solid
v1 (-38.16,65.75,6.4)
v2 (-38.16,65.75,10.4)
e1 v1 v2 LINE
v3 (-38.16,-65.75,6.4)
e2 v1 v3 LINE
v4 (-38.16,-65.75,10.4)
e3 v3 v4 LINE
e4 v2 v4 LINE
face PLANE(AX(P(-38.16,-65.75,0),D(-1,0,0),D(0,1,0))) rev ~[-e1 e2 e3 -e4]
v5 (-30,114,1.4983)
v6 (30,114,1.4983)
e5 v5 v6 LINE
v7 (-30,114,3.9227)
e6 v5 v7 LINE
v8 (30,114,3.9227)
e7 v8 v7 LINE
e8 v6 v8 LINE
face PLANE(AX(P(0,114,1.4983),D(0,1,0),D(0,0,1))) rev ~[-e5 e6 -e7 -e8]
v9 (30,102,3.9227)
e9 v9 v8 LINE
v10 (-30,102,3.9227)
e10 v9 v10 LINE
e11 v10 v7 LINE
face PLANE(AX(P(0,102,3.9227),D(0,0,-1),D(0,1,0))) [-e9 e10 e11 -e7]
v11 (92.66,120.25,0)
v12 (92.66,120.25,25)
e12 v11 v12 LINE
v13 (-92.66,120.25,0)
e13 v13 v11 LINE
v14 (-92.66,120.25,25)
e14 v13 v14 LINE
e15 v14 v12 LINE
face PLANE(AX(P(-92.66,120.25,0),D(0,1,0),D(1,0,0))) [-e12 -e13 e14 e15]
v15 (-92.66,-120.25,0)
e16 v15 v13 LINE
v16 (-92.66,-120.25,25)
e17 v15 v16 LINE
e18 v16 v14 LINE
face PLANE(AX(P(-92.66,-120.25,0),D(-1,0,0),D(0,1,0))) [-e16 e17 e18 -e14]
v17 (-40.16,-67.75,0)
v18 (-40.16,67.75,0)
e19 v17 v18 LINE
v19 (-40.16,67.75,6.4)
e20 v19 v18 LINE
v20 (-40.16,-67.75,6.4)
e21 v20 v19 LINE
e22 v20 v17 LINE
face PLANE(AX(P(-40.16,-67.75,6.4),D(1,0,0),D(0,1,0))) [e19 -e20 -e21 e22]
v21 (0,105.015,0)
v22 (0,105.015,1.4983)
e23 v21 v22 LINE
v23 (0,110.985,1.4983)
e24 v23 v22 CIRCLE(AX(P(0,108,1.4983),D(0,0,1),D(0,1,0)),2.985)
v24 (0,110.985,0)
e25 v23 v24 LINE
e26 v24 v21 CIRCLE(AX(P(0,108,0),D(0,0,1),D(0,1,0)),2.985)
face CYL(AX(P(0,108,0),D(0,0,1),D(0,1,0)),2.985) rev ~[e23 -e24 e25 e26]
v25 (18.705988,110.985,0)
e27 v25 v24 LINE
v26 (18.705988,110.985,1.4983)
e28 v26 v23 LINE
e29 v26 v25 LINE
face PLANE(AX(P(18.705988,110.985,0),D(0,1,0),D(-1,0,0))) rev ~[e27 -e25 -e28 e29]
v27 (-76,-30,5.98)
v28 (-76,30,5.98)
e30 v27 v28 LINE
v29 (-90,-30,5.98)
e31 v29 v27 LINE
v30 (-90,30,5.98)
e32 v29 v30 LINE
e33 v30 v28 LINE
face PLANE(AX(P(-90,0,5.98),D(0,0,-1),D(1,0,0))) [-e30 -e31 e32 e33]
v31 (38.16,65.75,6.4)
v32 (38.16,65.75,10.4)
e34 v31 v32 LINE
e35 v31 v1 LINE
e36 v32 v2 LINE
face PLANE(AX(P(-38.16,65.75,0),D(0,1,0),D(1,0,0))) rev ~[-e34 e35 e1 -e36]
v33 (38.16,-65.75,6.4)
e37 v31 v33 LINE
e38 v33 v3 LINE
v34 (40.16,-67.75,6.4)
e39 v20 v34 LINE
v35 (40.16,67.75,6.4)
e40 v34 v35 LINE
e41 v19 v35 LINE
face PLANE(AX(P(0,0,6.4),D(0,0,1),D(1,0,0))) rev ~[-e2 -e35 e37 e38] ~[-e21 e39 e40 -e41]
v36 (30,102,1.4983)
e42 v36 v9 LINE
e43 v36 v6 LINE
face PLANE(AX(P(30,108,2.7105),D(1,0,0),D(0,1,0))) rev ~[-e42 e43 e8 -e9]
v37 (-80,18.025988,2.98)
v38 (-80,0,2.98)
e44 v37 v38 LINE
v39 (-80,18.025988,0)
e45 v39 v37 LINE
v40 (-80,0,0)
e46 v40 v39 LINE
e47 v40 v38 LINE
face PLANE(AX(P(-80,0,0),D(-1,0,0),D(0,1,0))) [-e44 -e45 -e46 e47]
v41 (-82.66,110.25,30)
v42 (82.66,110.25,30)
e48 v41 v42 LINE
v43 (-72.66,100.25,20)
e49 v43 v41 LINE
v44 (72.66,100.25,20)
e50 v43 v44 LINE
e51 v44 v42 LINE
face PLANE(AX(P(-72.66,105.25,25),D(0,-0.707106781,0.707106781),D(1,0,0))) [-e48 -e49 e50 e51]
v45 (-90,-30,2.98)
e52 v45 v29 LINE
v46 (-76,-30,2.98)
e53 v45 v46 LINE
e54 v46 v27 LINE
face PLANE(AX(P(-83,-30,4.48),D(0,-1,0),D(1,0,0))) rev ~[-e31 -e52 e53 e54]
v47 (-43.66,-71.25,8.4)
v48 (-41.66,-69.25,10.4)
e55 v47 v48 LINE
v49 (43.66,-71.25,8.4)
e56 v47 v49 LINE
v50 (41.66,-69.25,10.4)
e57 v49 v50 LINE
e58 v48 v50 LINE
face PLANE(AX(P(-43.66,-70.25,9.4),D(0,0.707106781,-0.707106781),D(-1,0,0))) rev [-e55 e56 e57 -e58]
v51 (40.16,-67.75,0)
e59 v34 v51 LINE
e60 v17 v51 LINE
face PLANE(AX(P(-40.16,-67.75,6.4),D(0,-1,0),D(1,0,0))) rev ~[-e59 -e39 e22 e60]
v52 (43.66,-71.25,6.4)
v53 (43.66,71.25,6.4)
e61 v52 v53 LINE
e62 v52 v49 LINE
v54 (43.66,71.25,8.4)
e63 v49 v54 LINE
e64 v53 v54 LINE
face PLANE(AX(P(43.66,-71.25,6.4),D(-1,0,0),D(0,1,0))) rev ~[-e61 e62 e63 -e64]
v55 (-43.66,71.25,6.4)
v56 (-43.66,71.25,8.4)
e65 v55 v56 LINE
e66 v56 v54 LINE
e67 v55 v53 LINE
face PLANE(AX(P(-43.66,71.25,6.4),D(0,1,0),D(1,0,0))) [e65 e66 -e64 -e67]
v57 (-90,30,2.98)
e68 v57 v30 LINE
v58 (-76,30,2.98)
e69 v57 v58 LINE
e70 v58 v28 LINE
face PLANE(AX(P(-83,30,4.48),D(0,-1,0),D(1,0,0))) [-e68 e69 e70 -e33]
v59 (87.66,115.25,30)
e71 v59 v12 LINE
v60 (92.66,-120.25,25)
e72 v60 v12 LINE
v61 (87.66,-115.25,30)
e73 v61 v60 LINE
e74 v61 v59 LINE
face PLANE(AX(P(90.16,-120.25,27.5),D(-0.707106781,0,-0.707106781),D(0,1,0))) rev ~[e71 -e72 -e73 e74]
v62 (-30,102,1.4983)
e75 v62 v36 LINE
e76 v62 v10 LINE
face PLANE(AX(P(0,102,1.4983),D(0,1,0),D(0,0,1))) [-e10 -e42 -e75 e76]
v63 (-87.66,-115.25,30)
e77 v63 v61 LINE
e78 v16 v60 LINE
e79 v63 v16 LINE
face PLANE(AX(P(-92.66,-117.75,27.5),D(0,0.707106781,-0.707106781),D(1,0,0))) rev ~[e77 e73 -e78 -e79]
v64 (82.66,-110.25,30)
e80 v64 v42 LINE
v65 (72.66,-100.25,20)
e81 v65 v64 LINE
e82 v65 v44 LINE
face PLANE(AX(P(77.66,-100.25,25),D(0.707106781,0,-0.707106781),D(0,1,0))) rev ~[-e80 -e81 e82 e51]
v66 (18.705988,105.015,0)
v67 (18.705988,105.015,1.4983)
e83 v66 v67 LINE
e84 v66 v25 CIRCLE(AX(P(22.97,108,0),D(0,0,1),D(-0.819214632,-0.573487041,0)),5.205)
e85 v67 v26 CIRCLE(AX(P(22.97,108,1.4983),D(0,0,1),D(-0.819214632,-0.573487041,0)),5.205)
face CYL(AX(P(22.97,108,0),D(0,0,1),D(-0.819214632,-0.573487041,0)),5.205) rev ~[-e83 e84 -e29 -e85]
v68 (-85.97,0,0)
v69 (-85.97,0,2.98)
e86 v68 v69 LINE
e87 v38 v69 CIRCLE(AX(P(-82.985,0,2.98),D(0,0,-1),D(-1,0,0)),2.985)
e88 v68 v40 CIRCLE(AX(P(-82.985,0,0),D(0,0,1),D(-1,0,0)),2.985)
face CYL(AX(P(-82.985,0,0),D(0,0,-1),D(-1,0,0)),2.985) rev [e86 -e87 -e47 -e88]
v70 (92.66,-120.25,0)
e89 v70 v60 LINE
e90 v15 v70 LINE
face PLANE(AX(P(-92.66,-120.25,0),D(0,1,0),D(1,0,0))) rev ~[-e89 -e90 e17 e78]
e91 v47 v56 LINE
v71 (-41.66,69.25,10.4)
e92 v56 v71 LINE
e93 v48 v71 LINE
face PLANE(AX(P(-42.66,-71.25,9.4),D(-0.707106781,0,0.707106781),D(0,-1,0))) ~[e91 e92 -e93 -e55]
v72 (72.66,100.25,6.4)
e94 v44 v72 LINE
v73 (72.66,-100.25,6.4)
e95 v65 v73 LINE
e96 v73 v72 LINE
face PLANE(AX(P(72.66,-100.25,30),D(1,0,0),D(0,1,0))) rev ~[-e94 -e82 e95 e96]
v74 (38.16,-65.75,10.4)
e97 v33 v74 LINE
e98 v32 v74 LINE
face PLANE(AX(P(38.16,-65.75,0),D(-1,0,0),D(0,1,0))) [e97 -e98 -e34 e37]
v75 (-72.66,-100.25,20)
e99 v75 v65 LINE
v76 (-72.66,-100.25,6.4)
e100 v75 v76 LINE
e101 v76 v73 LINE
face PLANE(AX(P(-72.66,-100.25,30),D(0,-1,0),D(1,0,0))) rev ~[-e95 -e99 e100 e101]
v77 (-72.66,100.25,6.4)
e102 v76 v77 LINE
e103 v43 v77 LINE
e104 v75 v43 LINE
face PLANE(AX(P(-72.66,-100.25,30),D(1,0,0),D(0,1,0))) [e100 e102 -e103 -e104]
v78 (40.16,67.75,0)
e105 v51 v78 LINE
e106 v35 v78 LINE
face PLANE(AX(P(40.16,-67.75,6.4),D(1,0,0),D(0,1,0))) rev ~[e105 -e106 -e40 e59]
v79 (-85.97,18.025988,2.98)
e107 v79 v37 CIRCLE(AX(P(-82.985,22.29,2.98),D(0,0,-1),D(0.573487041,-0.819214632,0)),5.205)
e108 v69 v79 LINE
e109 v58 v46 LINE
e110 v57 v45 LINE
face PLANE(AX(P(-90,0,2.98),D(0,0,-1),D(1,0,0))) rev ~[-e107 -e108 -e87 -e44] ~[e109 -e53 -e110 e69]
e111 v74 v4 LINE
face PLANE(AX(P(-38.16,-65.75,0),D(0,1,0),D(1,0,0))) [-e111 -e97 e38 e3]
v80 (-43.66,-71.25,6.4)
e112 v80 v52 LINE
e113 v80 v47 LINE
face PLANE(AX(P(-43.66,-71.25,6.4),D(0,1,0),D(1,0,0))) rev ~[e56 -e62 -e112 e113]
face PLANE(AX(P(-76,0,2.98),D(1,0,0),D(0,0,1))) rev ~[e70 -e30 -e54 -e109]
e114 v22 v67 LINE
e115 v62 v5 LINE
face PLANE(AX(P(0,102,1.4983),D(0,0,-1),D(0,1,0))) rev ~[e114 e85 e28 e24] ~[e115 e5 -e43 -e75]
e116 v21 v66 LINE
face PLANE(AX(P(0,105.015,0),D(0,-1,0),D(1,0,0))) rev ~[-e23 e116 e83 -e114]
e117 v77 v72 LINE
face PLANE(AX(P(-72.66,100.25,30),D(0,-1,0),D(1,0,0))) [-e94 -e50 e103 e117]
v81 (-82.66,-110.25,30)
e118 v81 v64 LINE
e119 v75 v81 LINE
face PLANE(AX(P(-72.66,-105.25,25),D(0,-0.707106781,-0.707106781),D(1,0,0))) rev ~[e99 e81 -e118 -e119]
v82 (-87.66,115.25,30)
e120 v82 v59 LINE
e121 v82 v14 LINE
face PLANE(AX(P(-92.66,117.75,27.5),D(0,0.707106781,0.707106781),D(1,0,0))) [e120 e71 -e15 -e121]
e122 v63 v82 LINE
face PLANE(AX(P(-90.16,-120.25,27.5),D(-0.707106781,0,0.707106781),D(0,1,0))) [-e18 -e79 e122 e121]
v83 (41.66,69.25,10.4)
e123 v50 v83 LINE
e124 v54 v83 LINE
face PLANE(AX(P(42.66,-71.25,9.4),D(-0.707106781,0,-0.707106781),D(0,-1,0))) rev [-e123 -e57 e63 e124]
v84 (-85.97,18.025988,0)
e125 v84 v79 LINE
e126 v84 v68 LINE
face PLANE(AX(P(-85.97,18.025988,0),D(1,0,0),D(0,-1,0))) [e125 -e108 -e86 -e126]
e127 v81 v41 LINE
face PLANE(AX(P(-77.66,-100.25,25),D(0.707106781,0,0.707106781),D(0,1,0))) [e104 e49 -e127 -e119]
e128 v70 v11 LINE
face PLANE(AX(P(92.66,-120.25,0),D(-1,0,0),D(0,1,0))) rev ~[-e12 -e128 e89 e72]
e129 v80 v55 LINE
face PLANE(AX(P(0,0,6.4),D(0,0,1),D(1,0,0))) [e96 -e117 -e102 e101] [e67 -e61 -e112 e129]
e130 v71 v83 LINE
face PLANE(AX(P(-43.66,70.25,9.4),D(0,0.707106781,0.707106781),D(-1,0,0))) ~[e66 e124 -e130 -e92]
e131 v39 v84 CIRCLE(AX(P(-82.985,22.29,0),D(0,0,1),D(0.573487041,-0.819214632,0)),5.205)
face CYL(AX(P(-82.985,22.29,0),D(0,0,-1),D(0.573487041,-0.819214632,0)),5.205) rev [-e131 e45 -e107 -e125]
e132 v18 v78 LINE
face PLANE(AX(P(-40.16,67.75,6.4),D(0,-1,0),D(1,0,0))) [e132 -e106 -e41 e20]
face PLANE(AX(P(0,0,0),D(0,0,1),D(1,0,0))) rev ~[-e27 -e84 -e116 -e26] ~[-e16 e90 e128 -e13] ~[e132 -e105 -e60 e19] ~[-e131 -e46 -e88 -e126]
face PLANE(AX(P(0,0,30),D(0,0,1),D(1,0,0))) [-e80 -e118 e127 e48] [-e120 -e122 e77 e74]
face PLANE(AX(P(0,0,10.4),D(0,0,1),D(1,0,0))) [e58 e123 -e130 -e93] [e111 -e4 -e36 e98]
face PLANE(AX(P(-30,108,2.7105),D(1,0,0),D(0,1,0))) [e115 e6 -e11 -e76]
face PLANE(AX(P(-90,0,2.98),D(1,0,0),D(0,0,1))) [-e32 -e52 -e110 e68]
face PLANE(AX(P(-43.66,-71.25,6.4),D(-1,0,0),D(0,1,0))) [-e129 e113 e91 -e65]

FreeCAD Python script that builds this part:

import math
import FreeCAD as App
import Part
import Sketcher
from FreeCAD import Vector


def edges_at(feature, points):
    """Names of the edges that pass closest to the given points."""
    edges = feature.Shape.Edges
    near = lambda p: min(range(len(edges)), key=lambda i: edges[i].distToShape(Part.Vertex(*p))[0])
    return sorted({f"Edge{near(p) + 1}" for p in points})


def add_polygon(sketch, points):
    """Adds a closed chain of lines whose ends are joined by coincident constraints."""
    first, n = sketch.GeometryCount, len(points)
    for a, b in zip(points, points[1:] + points[:1]):
        sketch.addGeometry(Part.LineSegment(App.Vector(*a, 0), App.Vector(*b, 0)), False)
    for i in range(n):
        sketch.addConstraint(Sketcher.Constraint("Coincident", first + i, 2, first + (i + 1) % n, 1))

doc = App.newDocument("Part")
body = doc.addObject("PartDesign::Body", "Body")

sketch1 = doc.addObject("Sketcher::SketchObject", "Sketch")
body.addObject(sketch1)
sketch1.AttachmentSupport = (doc.XY_Plane, [""])
sketch1.MapMode = "FlatFace"
add_polygon(sketch1, [(-92.66, 120.25), (-92.66, -120.25), (92.66, -120.25), (92.66, 120.25)])
sketch1.addConstraint([
    Sketcher.Constraint("Vertical", 0),
    Sketcher.Constraint("Horizontal", 1),
    Sketcher.Constraint("Vertical", 2),
    Sketcher.Constraint("Horizontal", 3),
    Sketcher.Constraint("Symmetric", 0, 2, 2, 2, -1, 1),
    Sketcher.Constraint("DistanceY", 0, 2, 0, 1, 240.5),
    Sketcher.Constraint("DistanceX", 1, 1, 1, 2, 185.32),
])
pad1 = doc.addObject("PartDesign::Pad", "Pad")
body.addObject(pad1)
pad1.Profile = sketch1
pad1.Length = 30

sketch2 = doc.addObject("Sketcher::SketchObject", "Sketch001")
body.addObject(sketch2)
sketch2.AttachmentSupport = (doc.XY_Plane, [""])
sketch2.MapMode = "FlatFace"
sketch2.AttachmentOffset = App.Placement(Vector(0, 0, 30), App.Rotation())
add_polygon(sketch2, [(-72.66, 100.25), (-72.66, -100.25), (72.66, -100.25), (72.66, 100.25)])
sketch2.addConstraint([
    Sketcher.Constraint("Vertical", 0),
    Sketcher.Constraint("Horizontal", 1),
    Sketcher.Constraint("Vertical", 2),
    Sketcher.Constraint("Horizontal", 3),
    Sketcher.Constraint("Symmetric", 0, 2, 2, 2, -1, 1),
    Sketcher.Constraint("DistanceY", 0, 2, 0, 1, 200.5),
    Sketcher.Constraint("DistanceX", 1, 1, 1, 2, 145.32),
])
pocket1 = doc.addObject("PartDesign::Pocket", "Pocket")
body.addObject(pocket1)
pocket1.Profile = sketch2
pocket1.Length = 23.6

sketch3 = doc.addObject("Sketcher::SketchObject", "Sketch002")
body.addObject(sketch3)
sketch3.AttachmentSupport = (doc.XY_Plane, [""])
sketch3.MapMode = "FlatFace"
sketch3.AttachmentOffset = App.Placement(Vector(0, 0, 6.4), App.Rotation())
add_polygon(sketch3, [(-40.16, 67.75), (-40.16, -67.75), (40.16, -67.75), (40.16, 67.75)])
sketch3.addConstraint([
    Sketcher.Constraint("Vertical", 0),
    Sketcher.Constraint("Horizontal", 1),
    Sketcher.Constraint("Vertical", 2),
    Sketcher.Constraint("Horizontal", 3),
    Sketcher.Constraint("Symmetric", 0, 2, 2, 2, -1, 1),
    Sketcher.Constraint("DistanceY", 0, 2, 0, 1, 135.5),
    Sketcher.Constraint("DistanceX", 1, 1, 1, 2, 80.32),
])
pocket2 = doc.addObject("PartDesign::Pocket", "Pocket001")
body.addObject(pocket2)
pocket2.Profile = sketch3
pocket2.Length = 6.4

sketch4 = doc.addObject("Sketcher::SketchObject", "Sketch003")
body.addObject(sketch4)
sketch4.AttachmentSupport = (doc.XY_Plane, [""])
sketch4.MapMode = "FlatFace"
sketch4.addGeometry([
    Part.ArcOfCircle(Part.Circle(Vector(-82.985, 0, 0), Vector(0, 0, 1), 2.985), math.radians(180), math.radians(360)),
    Part.LineSegment(Vector(-80, 0, 0), Vector(-80, 18.025988, 0)),
    Part.ArcOfCircle(Part.Circle(Vector(-82.985, 22.29, 0), Vector(0, 0, 1), 5.205), math.radians(-55.006253), math.radians(235.006253)),
    Part.LineSegment(Vector(-85.97, 18.025988, 0), Vector(-85.97, 0, 0)),
], False)
sketch4.addConstraint([
    Sketcher.Constraint("Tangent", 0, 2, 1, 1),
    Sketcher.Constraint("Coincident", 1, 2, 2, 1),
    Sketcher.Constraint("Coincident", 2, 2, 3, 1),
    Sketcher.Constraint("Tangent", 3, 2, 0, 1),
    Sketcher.Constraint("Vertical", 1),
    Sketcher.Constraint("Vertical", 3),
    Sketcher.Constraint("PointOnObject", 0, 3, -1),
    Sketcher.Constraint("Horizontal", 1, 2, 2, 2),
    Sketcher.Constraint("DistanceX", 0, 2, -1, 1, 80.0),
    Sketcher.Constraint("Radius", 0, 2.985),
    Sketcher.Constraint("Radius", 2, 5.205),
    Sketcher.Constraint("DistanceY", -1, 1, 2, 3, 22.29),
])
pocket3 = doc.addObject("PartDesign::Pocket", "Pocket002")
body.addObject(pocket3)
pocket3.Profile = sketch4
pocket3.Length = 3
pocket3.Reversed = True

sketch5 = doc.addObject("Sketcher::SketchObject", "Sketch004")
body.addObject(sketch5)
sketch5.AttachmentSupport = (doc.XZ_Plane, [""])
sketch5.MapMode = "FlatFace"
add_polygon(sketch5, [(-90, 5.98), (-90, 2.98), (-76, 2.98), (-76, 5.98)])
sketch5.addConstraint([
    Sketcher.Constraint("Vertical", 0),
    Sketcher.Constraint("Horizontal", 1),
    Sketcher.Constraint("Vertical", 2),
    Sketcher.Constraint("Horizontal", 3),
    Sketcher.Constraint("DistanceX", 1, 1, 1, 2, 14.0),
    Sketcher.Constraint("DistanceY", 0, 2, 0, 1, 3.0),
    Sketcher.Constraint("DistanceX", 0, 2, -1, 1, 90.0),
    Sketcher.Constraint("DistanceY", -1, 1, 0, 2, 2.98),
])
pocket4 = doc.addObject("PartDesign::Pocket", "Pocket003")
body.addObject(pocket4)
pocket4.Profile = sketch5
pocket4.Length = 60
pocket4.Midplane = True

sketch6 = doc.addObject("Sketcher::SketchObject", "Sketch005")
body.addObject(sketch6)
sketch6.AttachmentSupport = (doc.XY_Plane, [""])
sketch6.MapMode = "FlatFace"
sketch6.addGeometry([
    Part.ArcOfCircle(Part.Circle(Vector(0, 108, 0), Vector(0, 0, 1), 2.985), math.radians(90), math.radians(270)),
    Part.LineSegment(Vector(0, 105.015, 0), Vector(18.705988, 105.015, 0)),
    Part.ArcOfCircle(Part.Circle(Vector(22.97, 108, 0), Vector(0, 0, 1), 5.205), math.radians(-145.006253), math.radians(145.006253)),
    Part.LineSegment(Vector(18.705988, 110.985, 0), Vector(0, 110.985, 0)),
], False)
sketch6.addConstraint([
    Sketcher.Constraint("Tangent", 0, 2, 1, 1),
    Sketcher.Constraint("Coincident", 1, 2, 2, 1),
    Sketcher.Constraint("Coincident", 2, 2, 3, 1),
    Sketcher.Constraint("Tangent", 3, 2, 0, 1),
    Sketcher.Constraint("Horizontal", 1),
    Sketcher.Constraint("Horizontal", 3),
    Sketcher.Constraint("PointOnObject", 0, 3, -2),
    Sketcher.Constraint("Horizontal", 0, 3, 2, 3),
    Sketcher.Constraint("DistanceY", -1, 1, 0, 3, 108.0),
    Sketcher.Constraint("Radius", 0, 2.985),
    Sketcher.Constraint("Radius", 2, 5.205),
    Sketcher.Constraint("DistanceX", -1, 1, 2, 3, 22.97),
])
pocket5 = doc.addObject("PartDesign::Pocket", "Pocket004")
body.addObject(pocket5)
pocket5.Profile = sketch6
pocket5.Length = 3
pocket5.Midplane = True

sketch7 = doc.addObject("Sketcher::SketchObject", "Sketch006")
body.addObject(sketch7)
sketch7.AttachmentSupport = (doc.YZ_Plane, [""])
sketch7.MapMode = "FlatFace"
add_polygon(sketch7, [(102, 3.9227), (102, 1.4983), (114, 1.4983), (114, 3.9227)])
sketch7.addConstraint([
    Sketcher.Constraint("Vertical", 0),
    Sketcher.Constraint("Horizontal", 1),
    Sketcher.Constraint("Vertical", 2),
    Sketcher.Constraint("Horizontal", 3),
    Sketcher.Constraint("DistanceX", 1, 1, 1, 2, 12.0),
    Sketcher.Constraint("DistanceX", -1, 1, 0, 2, 102.0),
    Sketcher.Constraint("DistanceY", 0, 2, 0, 1, 2.4244),
    Sketcher.Constraint("DistanceY", -1, 1, 0, 2, 1.4983),
])
pocket6 = doc.addObject("PartDesign::Pocket", "Pocket005")
body.addObject(pocket6)
pocket6.Profile = sketch7
pocket6.Length = 60
pocket6.Midplane = True

sketch8 = doc.addObject("Sketcher::SketchObject", "Sketch007")
body.addObject(sketch8)
sketch8.AttachmentSupport = (doc.XY_Plane, [""])
sketch8.MapMode = "FlatFace"
sketch8.AttachmentOffset = App.Placement(Vector(0, 0, 6.4), App.Rotation())
add_polygon(sketch8, [(-43.66, 71.25), (-43.66, -71.25), (43.66, -71.25), (43.66, 71.25)])
sketch8.addConstraint([
    Sketcher.Constraint("Vertical", 0),
    Sketcher.Constraint("Horizontal", 1),
    Sketcher.Constraint("Vertical", 2),
    Sketcher.Constraint("Horizontal", 3),
    Sketcher.Constraint("Symmetric", 0, 2, 2, 2, -1, 1),
    Sketcher.Constraint("DistanceY", 0, 2, 0, 1, 142.5),
    Sketcher.Constraint("DistanceX", 1, 1, 1, 2, 87.32),
])
pad2 = doc.addObject("PartDesign::Pad", "Pad001")
body.addObject(pad2)
pad2.Profile = sketch8
pad2.Length = 4

sketch9 = doc.addObject("Sketcher::SketchObject", "Sketch008")
body.addObject(sketch9)
sketch9.AttachmentSupport = (doc.XY_Plane, [""])
sketch9.MapMode = "FlatFace"
add_polygon(sketch9, [(-38.16, 65.75), (-38.16, -65.75), (38.16, -65.75), (38.16, 65.75)])
sketch9.addConstraint([
    Sketcher.Constraint("Vertical", 0),
    Sketcher.Constraint("Horizontal", 1),
    Sketcher.Constraint("Vertical", 2),
    Sketcher.Constraint("Horizontal", 3),
    Sketcher.Constraint("Symmetric", 0, 2, 2, 2, -1, 1),
    Sketcher.Constraint("DistanceY", 0, 2, 0, 1, 131.5),
    Sketcher.Constraint("DistanceX", 1, 1, 1, 2, 76.32),
])
pocket7 = doc.addObject("PartDesign::Pocket", "Pocket006")
body.addObject(pocket7)
pocket7.Profile = sketch9
pocket7.Type = "ThroughAll"
pocket7.Midplane = True
doc.recompute()

chamfer = doc.addObject("PartDesign::Chamfer", "Chamfer")
body.addObject(chamfer)
chamfer.Base = (pocket7, edges_at(pocket7, [
    (-72.66, 0, 30),
    (0, 100.25, 30),
    (72.66, 0, 30),
    (0, -100.25, 30),
]))
chamfer.Size = 10
doc.recompute()

chamfer2 = doc.addObject("PartDesign::Chamfer", "Chamfer001")
body.addObject(chamfer2)
chamfer2.Base = (chamfer, edges_at(chamfer, [
    (0, 120.25, 30),
    (-92.66, 0, 30),
    (0, -120.25, 30),
    (92.66, 0, 30),
]))
chamfer2.Size = 5
doc.recompute()

chamfer3 = doc.addObject("PartDesign::Chamfer", "Chamfer002")
body.addObject(chamfer3)
chamfer3.Base = (chamfer2, edges_at(chamfer2, [
    (-43.66, 0, 10.4),
    (0, -71.25, 10.4),
    (43.66, 0, 10.4),
    (0, 71.25, 10.4),
]))
chamfer3.Size = 2

doc.recompute()
